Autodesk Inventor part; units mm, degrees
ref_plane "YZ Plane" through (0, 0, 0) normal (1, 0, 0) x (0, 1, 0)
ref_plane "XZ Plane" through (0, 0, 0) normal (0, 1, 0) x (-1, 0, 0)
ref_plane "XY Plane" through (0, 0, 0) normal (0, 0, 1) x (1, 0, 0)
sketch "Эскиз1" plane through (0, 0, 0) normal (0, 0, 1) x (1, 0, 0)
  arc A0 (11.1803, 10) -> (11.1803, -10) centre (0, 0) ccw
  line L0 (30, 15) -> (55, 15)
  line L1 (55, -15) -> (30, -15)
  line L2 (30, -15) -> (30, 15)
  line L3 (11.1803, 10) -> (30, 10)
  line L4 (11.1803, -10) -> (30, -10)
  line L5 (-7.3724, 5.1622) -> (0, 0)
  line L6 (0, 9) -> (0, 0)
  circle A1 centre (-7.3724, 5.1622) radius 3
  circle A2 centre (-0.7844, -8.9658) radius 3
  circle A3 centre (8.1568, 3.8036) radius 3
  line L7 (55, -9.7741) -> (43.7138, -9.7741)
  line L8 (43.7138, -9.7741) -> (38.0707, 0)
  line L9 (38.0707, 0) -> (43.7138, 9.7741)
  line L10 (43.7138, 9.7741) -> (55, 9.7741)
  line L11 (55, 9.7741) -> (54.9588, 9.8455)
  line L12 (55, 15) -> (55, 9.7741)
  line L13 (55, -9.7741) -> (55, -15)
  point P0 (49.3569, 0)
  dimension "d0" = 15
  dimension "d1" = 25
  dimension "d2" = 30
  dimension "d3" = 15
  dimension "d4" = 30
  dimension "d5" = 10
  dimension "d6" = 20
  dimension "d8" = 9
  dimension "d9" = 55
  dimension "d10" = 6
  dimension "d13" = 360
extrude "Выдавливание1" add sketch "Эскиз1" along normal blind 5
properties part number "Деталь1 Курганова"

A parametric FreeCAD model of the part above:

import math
import FreeCAD as App
import Part
import Sketcher
from FreeCAD import Vector
Q = App.Units.Quantity

doc = App.newDocument("Part")
body = doc.addObject("PartDesign::Body", "Body")

sketch1 = body.newObject("Sketcher::SketchObject", "Sketch")
sketch1.AttachmentSupport = (doc.getObject("XY_Plane"), [""])
sketch1.MapMode = "FlatFace"
sketch1.addGeometry(Part.LineSegment(Vector(30, 10, 0), Vector(11.2, 10, 0)), False)
sketch1.addGeometry(Part.ArcOfCircle(Part.Circle(Vector(0, 0, 0), Vector(0, 0, 1), 15), math.radians(42), math.radians(318)), False)
sketch1.addGeometry(Part.LineSegment(Vector(11.2, -10, 0), Vector(30, -10, 0)), False)
sketch1.addGeometry(Part.LineSegment(Vector(30, -10, 0), Vector(30, -15, 0)), False)
sketch1.addGeometry(Part.LineSegment(Vector(30, -15, 0), Vector(55, -15, 0)), False)
sketch1.addGeometry(Part.LineSegment(Vector(55, -15, 0), Vector(55, -9.8, 0)), False)
sketch1.addGeometry(Part.LineSegment(Vector(55, -9.8, 0), Vector(43.7, -9.8, 0)), False)
sketch1.addGeometry(Part.LineSegment(Vector(43.7, -9.8, 0), Vector(38.1, 0, 0)), False)
sketch1.addGeometry(Part.LineSegment(Vector(38.1, 0, 0), Vector(43.7, 9.8, 0)), False)
sketch1.addGeometry(Part.LineSegment(Vector(43.7, 9.8, 0), Vector(55, 9.8, 0)), False)
sketch1.addGeometry(Part.LineSegment(Vector(55, 9.8, 0), Vector(55, 15, 0)), False)
sketch1.addGeometry(Part.LineSegment(Vector(55, 15, 0), Vector(30, 15, 0)), False)
sketch1.addGeometry(Part.LineSegment(Vector(30, 15, 0), Vector(30, 10, 0)), False)
sketch1.addGeometry(Part.Circle(Vector(-0.8, -9, 0), Vector(0, 0, 1), 3), False)
sketch1.addGeometry(Part.Circle(Vector(-7.4, 5.2, 0), Vector(0, 0, 1), 3), False)
sketch1.addGeometry(Part.Circle(Vector(8.2, 3.8, 0), Vector(0, 0, 1), 3), False)
sketch1.addConstraint(Sketcher.Constraint("Coincident", 0, 2, 1, 1))
sketch1.addConstraint(Sketcher.Constraint("Coincident", 1, 2, 2, 1))
sketch1.addConstraint(Sketcher.Constraint("Coincident", 2, 2, 3, 1))
sketch1.addConstraint(Sketcher.Constraint("Coincident", 3, 2, 4, 1))
sketch1.addConstraint(Sketcher.Constraint("Coincident", 4, 2, 5, 1))
sketch1.addConstraint(Sketcher.Constraint("Coincident", 5, 2, 6, 1))
sketch1.addConstraint(Sketcher.Constraint("Coincident", 6, 2, 7, 1))
sketch1.addConstraint(Sketcher.Constraint("Coincident", 7, 2, 8, 1))
sketch1.addConstraint(Sketcher.Constraint("Coincident", 8, 2, 9, 1))
sketch1.addConstraint(Sketcher.Constraint("Coincident", 9, 2, 10, 1))
sketch1.addConstraint(Sketcher.Constraint("Coincident", 10, 2, 11, 1))
sketch1.addConstraint(Sketcher.Constraint("Coincident", 11, 2, 12, 1))
sketch1.addConstraint(Sketcher.Constraint("Coincident", 12, 2, 0, 1))
sketch1.addConstraint(Sketcher.Constraint("Horizontal", 0))
sketch1.addConstraint(Sketcher.Constraint("Horizontal", 2))
sketch1.addConstraint(Sketcher.Constraint("Vertical", 3))
sketch1.addConstraint(Sketcher.Constraint("Horizontal", 4))
sketch1.addConstraint(Sketcher.Constraint("Vertical", 5))
sketch1.addConstraint(Sketcher.Constraint("Horizontal", 6))
sketch1.addConstraint(Sketcher.Constraint("Horizontal", 9))
sketch1.addConstraint(Sketcher.Constraint("Vertical", 10))
sketch1.addConstraint(Sketcher.Constraint("Horizontal", 11))
sketch1.addConstraint(Sketcher.Constraint("Vertical", 12))
sketch1.addConstraint(Sketcher.Constraint("Coincident", 1, 3, -1, 1))
sketch1.addConstraint(Sketcher.Constraint("Equal", 13, 14))
sketch1.addConstraint(Sketcher.Constraint("Equal", 14, 15))
sketch1.addConstraint(Sketcher.Constraint("Symmetric", 6, 2, 8, 2, -1))
sketch1.addConstraint(Sketcher.Constraint("Symmetric", 4, 2, 10, 2, -1))
sketch1.addConstraint(Sketcher.Constraint("Symmetric", 2, 2, 12, 2, -1))
sketch1.addConstraint(Sketcher.Constraint("PointOnObject", 7, 2, -1))
sketch1.addConstraint(Sketcher.Constraint("Diameter", 13, 6.0))
sketch1.addConstraint(Sketcher.Constraint("Radius", 1, 15.0))
sketch1.addConstraint(Sketcher.Constraint("DistanceX", 4, 1, 4, 2, 25.0))
sketch1.addConstraint(Sketcher.Constraint("DistanceY", -1, 1, 0, 2, 10.0))
sketch1.addConstraint(Sketcher.Constraint("DistanceX", -1, 1, 2, 2, 30.0))
sketch1.addConstraint(Sketcher.Constraint("DistanceY", 3, 2, -1, 1, 15.0))
sketch1.addConstraint(Sketcher.Constraint("Angle", 7, Q("120 deg")))
sketch1.addConstraint(Sketcher.Constraint("DistanceY", 5, 1, 5, 2, 5.226))
sketch1.addConstraint(Sketcher.Constraint("DistanceX", 6, 2, 6, 1, 11.2862))
sketch1.addConstraint(Sketcher.Constraint("DistanceX", 14, 3, 13, 3, 6.588))
sketch1.addConstraint(Sketcher.Constraint("DistanceY", 13, 3, 14, 3, 14.128))
sketch1.addConstraint(Sketcher.Constraint("DistanceX", 13, 3, -1, 1, 0.7844))
sketch1.addConstraint(Sketcher.Constraint("DistanceY", 13, 3, -1, 1, 8.9658))
sketch1.addConstraint(Sketcher.Constraint("DistanceX", -1, 1, 15, 3, 8.1568))
sketch1.addConstraint(Sketcher.Constraint("DistanceY", -1, 1, 15, 3, 3.8036))
pad1 = body.newObject("PartDesign::Pad", "Pad")
pad1.Profile = sketch1
pad1.Length = 5

doc.recompute()
